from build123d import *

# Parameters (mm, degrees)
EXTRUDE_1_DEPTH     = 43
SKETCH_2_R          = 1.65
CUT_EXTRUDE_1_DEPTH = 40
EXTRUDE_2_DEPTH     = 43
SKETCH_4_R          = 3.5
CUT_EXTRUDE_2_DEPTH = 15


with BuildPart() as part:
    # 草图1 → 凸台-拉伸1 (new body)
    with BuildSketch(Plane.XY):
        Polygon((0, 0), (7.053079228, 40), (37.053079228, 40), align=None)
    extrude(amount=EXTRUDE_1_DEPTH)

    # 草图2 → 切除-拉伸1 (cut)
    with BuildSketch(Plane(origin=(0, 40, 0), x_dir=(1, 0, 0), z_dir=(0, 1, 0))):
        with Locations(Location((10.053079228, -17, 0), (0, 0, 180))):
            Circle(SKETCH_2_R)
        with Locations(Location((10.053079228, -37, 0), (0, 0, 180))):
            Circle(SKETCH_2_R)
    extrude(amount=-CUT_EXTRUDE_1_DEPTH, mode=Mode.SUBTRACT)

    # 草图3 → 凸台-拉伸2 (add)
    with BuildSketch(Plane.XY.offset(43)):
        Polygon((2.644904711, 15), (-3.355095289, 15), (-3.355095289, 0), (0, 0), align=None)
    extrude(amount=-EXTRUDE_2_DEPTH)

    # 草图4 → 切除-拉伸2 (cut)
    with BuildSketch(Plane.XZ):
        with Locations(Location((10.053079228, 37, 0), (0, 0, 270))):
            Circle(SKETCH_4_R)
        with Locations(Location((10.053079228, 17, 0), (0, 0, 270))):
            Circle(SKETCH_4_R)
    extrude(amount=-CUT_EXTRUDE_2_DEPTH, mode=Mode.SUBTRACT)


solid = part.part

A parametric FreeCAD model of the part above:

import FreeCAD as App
import Part
import Sketcher
Q = App.Units.Quantity


def add_polygon(sketch, points):
    """Adds a closed chain of lines whose ends are joined by coincident constraints."""
    first, n = sketch.GeometryCount, len(points)
    for a, b in zip(points, points[1:] + points[:1]):
        sketch.addGeometry(Part.LineSegment(App.Vector(*a, 0), App.Vector(*b, 0)), False)
    for i in range(n):
        sketch.addConstraint(Sketcher.Constraint("Coincident", first + i, 2, first + (i + 1) % n, 1))

doc = App.newDocument("Part")
params = doc.addObject("Spreadsheet::Sheet", "Params")
for row, (alias, value) in enumerate([
    ("sketch1_width", "30 mm"),
    ("pad1_length", "43 mm"),
    ("sketch2_diameter", "3.3 mm"),
    ("pocket1_length", "40 mm"),
    ("sketch3_width", "6 mm"),
    ("sketch3_height", "15 mm"),
    ("pad2_length", "43 mm"),
    ("sketch4_diameter", "7 mm"),
    ("pocket2_length", "15 mm"),
], start=1):
    params.set(f"A{row}", alias)
    params.set(f"B{row}", "=" + value)
    params.setAlias(f"B{row}", alias)

body = doc.addObject("PartDesign::Body", "Body")

sketch1 = body.newObject("Sketcher::SketchObject", "Sketch")
sketch1.AttachmentSupport = (doc.getObject("XY_Plane"), [""])
sketch1.MapMode = "FlatFace"
add_polygon(sketch1, [(7.053079, 40), (0, 0), (37.053079, 40)])
sketch1.addConstraint(Sketcher.Constraint("Horizontal", 2))
sketch1.addConstraint(Sketcher.Constraint("Coincident", 0, 2, -1, 1))
sketch1.addConstraint(Sketcher.Constraint("DistanceX", 2, 2, 2, 1, Q("30 mm")))
sketch1.addConstraint(Sketcher.Constraint("Angle", 0, Q("-100 deg")))
sketch1.addConstraint(Sketcher.Constraint("DistanceY", -1, 1, 1, 2, Q("40 mm")))
sketch1.setExpression("Constraints[5]", "Params.sketch1_width")
pad1 = body.newObject("PartDesign::Pad", "Pad")
pad1.Profile = sketch1
pad1.setExpression("Length", "Params.pad1_length")

sketch2 = body.newObject("Sketcher::SketchObject", "Sketch001")
sketch2.AttachmentSupport = (doc.getObject("XZ_Plane"), [""])
sketch2.MapMode = "FlatFace"
sketch2.AttachmentOffset = App.Placement(App.Vector(0, 0, -40), App.Rotation())
sketch2.addGeometry(Part.Circle(App.Vector(10.053079, 17, 0), App.Vector(0, 0, 1), 1.65), False)
sketch2.addGeometry(Part.Circle(App.Vector(10.053079, 37, 0), App.Vector(0, 0, 1), 1.65), False)
sketch2.addConstraint(Sketcher.Constraint("Equal", 0, 1))
sketch2.addConstraint(Sketcher.Constraint("Vertical", 0, 3, 1, 3))
sketch2.addConstraint(Sketcher.Constraint("Diameter", 0, Q("3.3 mm")))
sketch2.addConstraint(Sketcher.Constraint("DistanceY", -1, 1, 0, 3, Q("17 mm")))
sketch2.addConstraint(Sketcher.Constraint("DistanceY", -1, 1, 1, 3, Q("37 mm")))
sketch2.addConstraint(Sketcher.Constraint("DistanceX", -1, 1, 0, 3, Q("10.053079 mm")))
sketch2.setExpression("Constraints[2]", "Params.sketch2_diameter")
pocket1 = body.newObject("PartDesign::Pocket", "Pocket")
pocket1.Profile = sketch2
pocket1.setExpression("Length", "Params.pocket1_length")
pocket1.Reversed = True

sketch3 = body.newObject("Sketcher::SketchObject", "Sketch002")
sketch3.AttachmentSupport = (doc.getObject("XY_Plane"), [""])
sketch3.MapMode = "FlatFace"
sketch3.AttachmentOffset = App.Placement(App.Vector(0, 0, 43), App.Rotation())
add_polygon(sketch3, [(2.644905, 15), (-3.355095, 15), (-3.355095, 0), (0, 0)])
sketch3.addConstraint(Sketcher.Constraint("Horizontal", 0))
sketch3.addConstraint(Sketcher.Constraint("Vertical", 1))
sketch3.addConstraint(Sketcher.Constraint("Horizontal", 2))
sketch3.addConstraint(Sketcher.Constraint("Coincident", 2, 2, -1, 1))
sketch3.addConstraint(Sketcher.Constraint("DistanceX", 0, 2, 0, 1, Q("6 mm")))
sketch3.addConstraint(Sketcher.Constraint("DistanceY", 1, 2, 1, 1, Q("15 mm")))
sketch3.addConstraint(Sketcher.Constraint("Angle", 3, Q("80 deg")))
sketch3.setExpression("Constraints[8]", "Params.sketch3_width")
sketch3.setExpression("Constraints[9]", "Params.sketch3_height")
pad2 = body.newObject("PartDesign::Pad", "Pad001")
pad2.Profile = sketch3
pad2.setExpression("Length", "Params.pad2_length")
pad2.Reversed = True

sketch4 = body.newObject("Sketcher::SketchObject", "Sketch003")
sketch4.AttachmentSupport = (doc.getObject("XZ_Plane"), [""])
sketch4.MapMode = "FlatFace"
sketch4.addGeometry(Part.Circle(App.Vector(10.053079, 37, 0), App.Vector(0, 0, 1), 3.5), False)
sketch4.addGeometry(Part.Circle(App.Vector(10.053079, 17, 0), App.Vector(0, 0, 1), 3.5), False)
sketch4.addConstraint(Sketcher.Constraint("Equal", 0, 1))
sketch4.addConstraint(Sketcher.Constraint("Vertical", 0, 3, 1, 3))
sketch4.addConstraint(Sketcher.Constraint("Diameter", 0, Q("7 mm")))
sketch4.addConstraint(Sketcher.Constraint("DistanceY", -1, 1, 0, 3, Q("37 mm")))
sketch4.addConstraint(Sketcher.Constraint("DistanceY", -1, 1, 1, 3, Q("17 mm")))
sketch4.addConstraint(Sketcher.Constraint("DistanceX", -1, 1, 0, 3, Q("10.053079 mm")))
sketch4.setExpression("Constraints[2]", "Params.sketch4_diameter")
pocket2 = body.newObject("PartDesign::Pocket", "Pocket001")
pocket2.Profile = sketch4
pocket2.setExpression("Length", "Params.pocket2_length")

doc.recompute()
